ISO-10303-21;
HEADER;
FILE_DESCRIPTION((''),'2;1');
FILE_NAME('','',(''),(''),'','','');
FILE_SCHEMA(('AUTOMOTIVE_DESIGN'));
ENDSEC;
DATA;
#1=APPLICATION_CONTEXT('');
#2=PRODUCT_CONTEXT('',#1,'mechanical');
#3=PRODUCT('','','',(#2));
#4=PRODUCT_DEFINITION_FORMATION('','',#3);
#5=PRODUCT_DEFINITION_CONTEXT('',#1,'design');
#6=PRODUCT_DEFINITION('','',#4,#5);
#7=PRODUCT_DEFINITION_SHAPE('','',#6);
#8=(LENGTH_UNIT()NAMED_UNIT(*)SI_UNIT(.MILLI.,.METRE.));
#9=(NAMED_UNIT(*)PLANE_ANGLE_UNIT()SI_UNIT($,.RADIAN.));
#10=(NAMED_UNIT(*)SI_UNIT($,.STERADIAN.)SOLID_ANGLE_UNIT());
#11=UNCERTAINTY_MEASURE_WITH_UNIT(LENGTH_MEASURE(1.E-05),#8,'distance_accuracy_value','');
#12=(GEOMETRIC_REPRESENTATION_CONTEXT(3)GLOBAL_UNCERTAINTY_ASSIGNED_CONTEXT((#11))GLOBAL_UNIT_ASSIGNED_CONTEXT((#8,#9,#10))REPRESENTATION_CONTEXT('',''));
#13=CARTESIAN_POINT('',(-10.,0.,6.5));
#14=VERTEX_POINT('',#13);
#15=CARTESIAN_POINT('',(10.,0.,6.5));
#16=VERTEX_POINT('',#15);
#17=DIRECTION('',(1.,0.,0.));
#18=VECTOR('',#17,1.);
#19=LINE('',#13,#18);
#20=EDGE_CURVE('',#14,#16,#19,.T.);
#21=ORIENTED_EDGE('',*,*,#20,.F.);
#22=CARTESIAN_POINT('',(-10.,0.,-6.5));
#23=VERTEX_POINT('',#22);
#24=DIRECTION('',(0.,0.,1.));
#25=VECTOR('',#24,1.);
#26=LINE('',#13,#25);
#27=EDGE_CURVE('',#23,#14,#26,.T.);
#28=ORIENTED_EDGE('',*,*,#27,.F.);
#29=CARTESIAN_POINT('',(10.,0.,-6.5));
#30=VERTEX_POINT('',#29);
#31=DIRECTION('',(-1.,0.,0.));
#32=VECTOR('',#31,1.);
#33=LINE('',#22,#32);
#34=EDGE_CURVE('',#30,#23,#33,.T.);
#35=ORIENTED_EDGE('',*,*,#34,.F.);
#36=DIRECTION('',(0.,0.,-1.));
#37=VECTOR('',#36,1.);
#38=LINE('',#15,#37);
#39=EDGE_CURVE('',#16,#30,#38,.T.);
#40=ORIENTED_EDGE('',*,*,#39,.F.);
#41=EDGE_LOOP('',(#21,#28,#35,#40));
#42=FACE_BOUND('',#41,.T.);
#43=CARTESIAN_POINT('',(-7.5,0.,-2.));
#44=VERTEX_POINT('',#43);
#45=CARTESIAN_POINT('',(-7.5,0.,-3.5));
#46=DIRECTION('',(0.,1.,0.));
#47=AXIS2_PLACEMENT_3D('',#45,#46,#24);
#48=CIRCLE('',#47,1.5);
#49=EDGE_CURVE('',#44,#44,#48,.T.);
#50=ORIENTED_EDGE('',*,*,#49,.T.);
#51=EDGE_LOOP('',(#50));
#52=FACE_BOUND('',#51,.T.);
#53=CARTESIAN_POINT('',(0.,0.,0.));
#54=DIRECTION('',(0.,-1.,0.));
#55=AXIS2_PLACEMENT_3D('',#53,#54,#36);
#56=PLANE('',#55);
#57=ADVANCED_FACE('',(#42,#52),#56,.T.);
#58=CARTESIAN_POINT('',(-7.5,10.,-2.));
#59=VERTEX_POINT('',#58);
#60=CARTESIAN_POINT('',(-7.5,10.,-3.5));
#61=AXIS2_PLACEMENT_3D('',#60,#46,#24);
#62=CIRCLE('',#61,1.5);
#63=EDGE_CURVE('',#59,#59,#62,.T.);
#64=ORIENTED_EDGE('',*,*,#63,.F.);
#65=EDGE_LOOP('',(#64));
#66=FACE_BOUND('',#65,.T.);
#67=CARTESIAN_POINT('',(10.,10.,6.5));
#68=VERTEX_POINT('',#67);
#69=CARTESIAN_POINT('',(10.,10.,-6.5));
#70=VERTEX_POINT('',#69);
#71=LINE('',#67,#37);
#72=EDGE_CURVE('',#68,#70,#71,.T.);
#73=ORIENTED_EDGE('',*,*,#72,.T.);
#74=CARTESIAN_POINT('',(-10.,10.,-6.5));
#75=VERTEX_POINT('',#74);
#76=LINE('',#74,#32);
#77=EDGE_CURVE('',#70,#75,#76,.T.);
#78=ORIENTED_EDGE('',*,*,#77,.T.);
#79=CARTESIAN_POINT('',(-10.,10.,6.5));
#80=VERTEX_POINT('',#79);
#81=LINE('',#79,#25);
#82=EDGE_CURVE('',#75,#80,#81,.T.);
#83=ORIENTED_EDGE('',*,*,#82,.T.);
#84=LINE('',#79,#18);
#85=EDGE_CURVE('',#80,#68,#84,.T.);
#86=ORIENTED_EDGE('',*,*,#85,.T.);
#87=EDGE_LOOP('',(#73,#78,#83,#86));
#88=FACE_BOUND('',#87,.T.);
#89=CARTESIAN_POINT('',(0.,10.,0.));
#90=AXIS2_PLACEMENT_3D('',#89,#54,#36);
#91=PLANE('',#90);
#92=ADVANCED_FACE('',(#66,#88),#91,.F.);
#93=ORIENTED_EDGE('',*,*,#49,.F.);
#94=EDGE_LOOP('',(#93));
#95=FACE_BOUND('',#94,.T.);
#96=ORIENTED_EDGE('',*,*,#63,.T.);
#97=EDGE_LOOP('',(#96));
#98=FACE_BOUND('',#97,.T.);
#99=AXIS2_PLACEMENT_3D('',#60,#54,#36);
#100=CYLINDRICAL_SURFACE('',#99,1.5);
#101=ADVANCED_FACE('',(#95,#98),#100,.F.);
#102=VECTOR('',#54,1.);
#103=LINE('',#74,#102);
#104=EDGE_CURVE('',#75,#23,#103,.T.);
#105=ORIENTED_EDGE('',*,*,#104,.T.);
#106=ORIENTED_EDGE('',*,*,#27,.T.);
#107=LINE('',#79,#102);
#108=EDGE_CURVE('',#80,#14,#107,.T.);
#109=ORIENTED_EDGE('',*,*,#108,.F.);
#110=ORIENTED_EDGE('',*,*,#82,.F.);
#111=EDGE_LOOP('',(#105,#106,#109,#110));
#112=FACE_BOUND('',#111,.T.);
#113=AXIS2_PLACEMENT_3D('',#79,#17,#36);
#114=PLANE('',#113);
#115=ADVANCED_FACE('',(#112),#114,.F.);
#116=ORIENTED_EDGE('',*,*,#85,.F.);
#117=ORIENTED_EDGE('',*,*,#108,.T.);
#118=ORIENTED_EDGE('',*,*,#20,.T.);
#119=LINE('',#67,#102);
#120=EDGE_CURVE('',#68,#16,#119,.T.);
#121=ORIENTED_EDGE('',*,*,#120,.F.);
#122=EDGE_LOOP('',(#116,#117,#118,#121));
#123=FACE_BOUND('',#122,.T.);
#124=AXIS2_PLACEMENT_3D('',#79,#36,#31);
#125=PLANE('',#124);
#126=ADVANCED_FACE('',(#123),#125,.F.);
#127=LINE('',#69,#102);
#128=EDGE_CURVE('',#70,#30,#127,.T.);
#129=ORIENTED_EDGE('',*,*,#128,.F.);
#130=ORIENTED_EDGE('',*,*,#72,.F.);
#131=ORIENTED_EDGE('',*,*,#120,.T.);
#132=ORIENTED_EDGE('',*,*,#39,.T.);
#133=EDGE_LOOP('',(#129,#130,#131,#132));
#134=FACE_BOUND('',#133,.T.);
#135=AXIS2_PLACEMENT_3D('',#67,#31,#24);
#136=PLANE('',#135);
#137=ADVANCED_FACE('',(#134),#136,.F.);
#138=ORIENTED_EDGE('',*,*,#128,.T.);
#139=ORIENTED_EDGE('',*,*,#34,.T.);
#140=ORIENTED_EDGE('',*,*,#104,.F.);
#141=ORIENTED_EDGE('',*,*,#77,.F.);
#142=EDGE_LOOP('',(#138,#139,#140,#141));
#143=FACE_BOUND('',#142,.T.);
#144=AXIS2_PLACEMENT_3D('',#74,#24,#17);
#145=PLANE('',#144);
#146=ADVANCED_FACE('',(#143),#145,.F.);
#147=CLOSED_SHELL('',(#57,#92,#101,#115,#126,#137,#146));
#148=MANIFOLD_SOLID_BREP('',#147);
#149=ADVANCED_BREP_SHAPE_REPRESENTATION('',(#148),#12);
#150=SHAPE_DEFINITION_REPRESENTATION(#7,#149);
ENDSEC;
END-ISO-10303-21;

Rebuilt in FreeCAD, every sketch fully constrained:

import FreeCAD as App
import Part
import Sketcher

V = App.Vector
Q = App.Units.Quantity


def add_polygon(sketch, points):
    """Adds a closed chain of lines whose ends are joined by coincident constraints."""
    first, n = sketch.GeometryCount, len(points)
    for a, b in zip(points, points[1:] + points[:1]):
        sketch.addGeometry(Part.LineSegment(App.Vector(*a, 0), App.Vector(*b, 0)), False)
    for i in range(n):
        sketch.addConstraint(Sketcher.Constraint("Coincident", first + i, 2, first + (i + 1) % n, 1))

doc = App.newDocument("Part")
params = doc.addObject("Spreadsheet::Sheet", "Params")
for row, (alias, value) in enumerate([
    ("sketch1_diameter", "3 mm"),
    ("sketch1_width", "20 mm"),
    ("sketch1_height", "13 mm"),
    ("pad1_length", "10 mm"),
], start=1):
    params.set(f"A{row}", alias)
    params.set(f"B{row}", "=" + value)
    params.setAlias(f"B{row}", alias)

body = doc.addObject("PartDesign::Body", "Body")

# Sketch on XZ plane
sketch1 = doc.addObject("Sketcher::SketchObject", "Sketch")
body.addObject(sketch1)
sketch1.AttachmentSupport = (doc.XZ_Plane, [""])
sketch1.MapMode = "FlatFace"
add_polygon(sketch1, [(-10, -6.5), (-10, 6.5), (10, 6.5), (10, -6.5)])  # lines 0-3
sketch1.addGeometry(Part.Circle(V(-7.5, -3.5, 0), V(0, 0, 1), 1.5), False)  # 4
sketch1.addConstraint([
    Sketcher.Constraint("Vertical", 0),
    Sketcher.Constraint("Horizontal", 1),
    Sketcher.Constraint("Vertical", 2),
    Sketcher.Constraint("Horizontal", 3),
    Sketcher.Constraint("Symmetric", 0, 2, 2, 2, -1, 1),
    Sketcher.Constraint("Diameter", 4, Q("3 mm")),
    Sketcher.Constraint("DistanceX", 1, 1, 1, 2, Q("20 mm")),
    Sketcher.Constraint("DistanceY", 0, 1, 0, 2, Q("13 mm")),
    Sketcher.Constraint("DistanceY", 4, 3, 0, 2, Q("10 mm")),
    Sketcher.Constraint("DistanceX", 4, 3, -1, 1, Q("7.5 mm")),
])
sketch1.setExpression("Constraints[9]", "Params.sketch1_diameter")
sketch1.setExpression("Constraints[10]", "Params.sketch1_width")
sketch1.setExpression("Constraints[11]", "Params.sketch1_height")
pad1 = doc.addObject("PartDesign::Pad", "Pad")
body.addObject(pad1)
pad1.Profile = sketch1
pad1.setExpression("Length", "Params.pad1_length")
pad1.Reversed = True

doc.recompute()
